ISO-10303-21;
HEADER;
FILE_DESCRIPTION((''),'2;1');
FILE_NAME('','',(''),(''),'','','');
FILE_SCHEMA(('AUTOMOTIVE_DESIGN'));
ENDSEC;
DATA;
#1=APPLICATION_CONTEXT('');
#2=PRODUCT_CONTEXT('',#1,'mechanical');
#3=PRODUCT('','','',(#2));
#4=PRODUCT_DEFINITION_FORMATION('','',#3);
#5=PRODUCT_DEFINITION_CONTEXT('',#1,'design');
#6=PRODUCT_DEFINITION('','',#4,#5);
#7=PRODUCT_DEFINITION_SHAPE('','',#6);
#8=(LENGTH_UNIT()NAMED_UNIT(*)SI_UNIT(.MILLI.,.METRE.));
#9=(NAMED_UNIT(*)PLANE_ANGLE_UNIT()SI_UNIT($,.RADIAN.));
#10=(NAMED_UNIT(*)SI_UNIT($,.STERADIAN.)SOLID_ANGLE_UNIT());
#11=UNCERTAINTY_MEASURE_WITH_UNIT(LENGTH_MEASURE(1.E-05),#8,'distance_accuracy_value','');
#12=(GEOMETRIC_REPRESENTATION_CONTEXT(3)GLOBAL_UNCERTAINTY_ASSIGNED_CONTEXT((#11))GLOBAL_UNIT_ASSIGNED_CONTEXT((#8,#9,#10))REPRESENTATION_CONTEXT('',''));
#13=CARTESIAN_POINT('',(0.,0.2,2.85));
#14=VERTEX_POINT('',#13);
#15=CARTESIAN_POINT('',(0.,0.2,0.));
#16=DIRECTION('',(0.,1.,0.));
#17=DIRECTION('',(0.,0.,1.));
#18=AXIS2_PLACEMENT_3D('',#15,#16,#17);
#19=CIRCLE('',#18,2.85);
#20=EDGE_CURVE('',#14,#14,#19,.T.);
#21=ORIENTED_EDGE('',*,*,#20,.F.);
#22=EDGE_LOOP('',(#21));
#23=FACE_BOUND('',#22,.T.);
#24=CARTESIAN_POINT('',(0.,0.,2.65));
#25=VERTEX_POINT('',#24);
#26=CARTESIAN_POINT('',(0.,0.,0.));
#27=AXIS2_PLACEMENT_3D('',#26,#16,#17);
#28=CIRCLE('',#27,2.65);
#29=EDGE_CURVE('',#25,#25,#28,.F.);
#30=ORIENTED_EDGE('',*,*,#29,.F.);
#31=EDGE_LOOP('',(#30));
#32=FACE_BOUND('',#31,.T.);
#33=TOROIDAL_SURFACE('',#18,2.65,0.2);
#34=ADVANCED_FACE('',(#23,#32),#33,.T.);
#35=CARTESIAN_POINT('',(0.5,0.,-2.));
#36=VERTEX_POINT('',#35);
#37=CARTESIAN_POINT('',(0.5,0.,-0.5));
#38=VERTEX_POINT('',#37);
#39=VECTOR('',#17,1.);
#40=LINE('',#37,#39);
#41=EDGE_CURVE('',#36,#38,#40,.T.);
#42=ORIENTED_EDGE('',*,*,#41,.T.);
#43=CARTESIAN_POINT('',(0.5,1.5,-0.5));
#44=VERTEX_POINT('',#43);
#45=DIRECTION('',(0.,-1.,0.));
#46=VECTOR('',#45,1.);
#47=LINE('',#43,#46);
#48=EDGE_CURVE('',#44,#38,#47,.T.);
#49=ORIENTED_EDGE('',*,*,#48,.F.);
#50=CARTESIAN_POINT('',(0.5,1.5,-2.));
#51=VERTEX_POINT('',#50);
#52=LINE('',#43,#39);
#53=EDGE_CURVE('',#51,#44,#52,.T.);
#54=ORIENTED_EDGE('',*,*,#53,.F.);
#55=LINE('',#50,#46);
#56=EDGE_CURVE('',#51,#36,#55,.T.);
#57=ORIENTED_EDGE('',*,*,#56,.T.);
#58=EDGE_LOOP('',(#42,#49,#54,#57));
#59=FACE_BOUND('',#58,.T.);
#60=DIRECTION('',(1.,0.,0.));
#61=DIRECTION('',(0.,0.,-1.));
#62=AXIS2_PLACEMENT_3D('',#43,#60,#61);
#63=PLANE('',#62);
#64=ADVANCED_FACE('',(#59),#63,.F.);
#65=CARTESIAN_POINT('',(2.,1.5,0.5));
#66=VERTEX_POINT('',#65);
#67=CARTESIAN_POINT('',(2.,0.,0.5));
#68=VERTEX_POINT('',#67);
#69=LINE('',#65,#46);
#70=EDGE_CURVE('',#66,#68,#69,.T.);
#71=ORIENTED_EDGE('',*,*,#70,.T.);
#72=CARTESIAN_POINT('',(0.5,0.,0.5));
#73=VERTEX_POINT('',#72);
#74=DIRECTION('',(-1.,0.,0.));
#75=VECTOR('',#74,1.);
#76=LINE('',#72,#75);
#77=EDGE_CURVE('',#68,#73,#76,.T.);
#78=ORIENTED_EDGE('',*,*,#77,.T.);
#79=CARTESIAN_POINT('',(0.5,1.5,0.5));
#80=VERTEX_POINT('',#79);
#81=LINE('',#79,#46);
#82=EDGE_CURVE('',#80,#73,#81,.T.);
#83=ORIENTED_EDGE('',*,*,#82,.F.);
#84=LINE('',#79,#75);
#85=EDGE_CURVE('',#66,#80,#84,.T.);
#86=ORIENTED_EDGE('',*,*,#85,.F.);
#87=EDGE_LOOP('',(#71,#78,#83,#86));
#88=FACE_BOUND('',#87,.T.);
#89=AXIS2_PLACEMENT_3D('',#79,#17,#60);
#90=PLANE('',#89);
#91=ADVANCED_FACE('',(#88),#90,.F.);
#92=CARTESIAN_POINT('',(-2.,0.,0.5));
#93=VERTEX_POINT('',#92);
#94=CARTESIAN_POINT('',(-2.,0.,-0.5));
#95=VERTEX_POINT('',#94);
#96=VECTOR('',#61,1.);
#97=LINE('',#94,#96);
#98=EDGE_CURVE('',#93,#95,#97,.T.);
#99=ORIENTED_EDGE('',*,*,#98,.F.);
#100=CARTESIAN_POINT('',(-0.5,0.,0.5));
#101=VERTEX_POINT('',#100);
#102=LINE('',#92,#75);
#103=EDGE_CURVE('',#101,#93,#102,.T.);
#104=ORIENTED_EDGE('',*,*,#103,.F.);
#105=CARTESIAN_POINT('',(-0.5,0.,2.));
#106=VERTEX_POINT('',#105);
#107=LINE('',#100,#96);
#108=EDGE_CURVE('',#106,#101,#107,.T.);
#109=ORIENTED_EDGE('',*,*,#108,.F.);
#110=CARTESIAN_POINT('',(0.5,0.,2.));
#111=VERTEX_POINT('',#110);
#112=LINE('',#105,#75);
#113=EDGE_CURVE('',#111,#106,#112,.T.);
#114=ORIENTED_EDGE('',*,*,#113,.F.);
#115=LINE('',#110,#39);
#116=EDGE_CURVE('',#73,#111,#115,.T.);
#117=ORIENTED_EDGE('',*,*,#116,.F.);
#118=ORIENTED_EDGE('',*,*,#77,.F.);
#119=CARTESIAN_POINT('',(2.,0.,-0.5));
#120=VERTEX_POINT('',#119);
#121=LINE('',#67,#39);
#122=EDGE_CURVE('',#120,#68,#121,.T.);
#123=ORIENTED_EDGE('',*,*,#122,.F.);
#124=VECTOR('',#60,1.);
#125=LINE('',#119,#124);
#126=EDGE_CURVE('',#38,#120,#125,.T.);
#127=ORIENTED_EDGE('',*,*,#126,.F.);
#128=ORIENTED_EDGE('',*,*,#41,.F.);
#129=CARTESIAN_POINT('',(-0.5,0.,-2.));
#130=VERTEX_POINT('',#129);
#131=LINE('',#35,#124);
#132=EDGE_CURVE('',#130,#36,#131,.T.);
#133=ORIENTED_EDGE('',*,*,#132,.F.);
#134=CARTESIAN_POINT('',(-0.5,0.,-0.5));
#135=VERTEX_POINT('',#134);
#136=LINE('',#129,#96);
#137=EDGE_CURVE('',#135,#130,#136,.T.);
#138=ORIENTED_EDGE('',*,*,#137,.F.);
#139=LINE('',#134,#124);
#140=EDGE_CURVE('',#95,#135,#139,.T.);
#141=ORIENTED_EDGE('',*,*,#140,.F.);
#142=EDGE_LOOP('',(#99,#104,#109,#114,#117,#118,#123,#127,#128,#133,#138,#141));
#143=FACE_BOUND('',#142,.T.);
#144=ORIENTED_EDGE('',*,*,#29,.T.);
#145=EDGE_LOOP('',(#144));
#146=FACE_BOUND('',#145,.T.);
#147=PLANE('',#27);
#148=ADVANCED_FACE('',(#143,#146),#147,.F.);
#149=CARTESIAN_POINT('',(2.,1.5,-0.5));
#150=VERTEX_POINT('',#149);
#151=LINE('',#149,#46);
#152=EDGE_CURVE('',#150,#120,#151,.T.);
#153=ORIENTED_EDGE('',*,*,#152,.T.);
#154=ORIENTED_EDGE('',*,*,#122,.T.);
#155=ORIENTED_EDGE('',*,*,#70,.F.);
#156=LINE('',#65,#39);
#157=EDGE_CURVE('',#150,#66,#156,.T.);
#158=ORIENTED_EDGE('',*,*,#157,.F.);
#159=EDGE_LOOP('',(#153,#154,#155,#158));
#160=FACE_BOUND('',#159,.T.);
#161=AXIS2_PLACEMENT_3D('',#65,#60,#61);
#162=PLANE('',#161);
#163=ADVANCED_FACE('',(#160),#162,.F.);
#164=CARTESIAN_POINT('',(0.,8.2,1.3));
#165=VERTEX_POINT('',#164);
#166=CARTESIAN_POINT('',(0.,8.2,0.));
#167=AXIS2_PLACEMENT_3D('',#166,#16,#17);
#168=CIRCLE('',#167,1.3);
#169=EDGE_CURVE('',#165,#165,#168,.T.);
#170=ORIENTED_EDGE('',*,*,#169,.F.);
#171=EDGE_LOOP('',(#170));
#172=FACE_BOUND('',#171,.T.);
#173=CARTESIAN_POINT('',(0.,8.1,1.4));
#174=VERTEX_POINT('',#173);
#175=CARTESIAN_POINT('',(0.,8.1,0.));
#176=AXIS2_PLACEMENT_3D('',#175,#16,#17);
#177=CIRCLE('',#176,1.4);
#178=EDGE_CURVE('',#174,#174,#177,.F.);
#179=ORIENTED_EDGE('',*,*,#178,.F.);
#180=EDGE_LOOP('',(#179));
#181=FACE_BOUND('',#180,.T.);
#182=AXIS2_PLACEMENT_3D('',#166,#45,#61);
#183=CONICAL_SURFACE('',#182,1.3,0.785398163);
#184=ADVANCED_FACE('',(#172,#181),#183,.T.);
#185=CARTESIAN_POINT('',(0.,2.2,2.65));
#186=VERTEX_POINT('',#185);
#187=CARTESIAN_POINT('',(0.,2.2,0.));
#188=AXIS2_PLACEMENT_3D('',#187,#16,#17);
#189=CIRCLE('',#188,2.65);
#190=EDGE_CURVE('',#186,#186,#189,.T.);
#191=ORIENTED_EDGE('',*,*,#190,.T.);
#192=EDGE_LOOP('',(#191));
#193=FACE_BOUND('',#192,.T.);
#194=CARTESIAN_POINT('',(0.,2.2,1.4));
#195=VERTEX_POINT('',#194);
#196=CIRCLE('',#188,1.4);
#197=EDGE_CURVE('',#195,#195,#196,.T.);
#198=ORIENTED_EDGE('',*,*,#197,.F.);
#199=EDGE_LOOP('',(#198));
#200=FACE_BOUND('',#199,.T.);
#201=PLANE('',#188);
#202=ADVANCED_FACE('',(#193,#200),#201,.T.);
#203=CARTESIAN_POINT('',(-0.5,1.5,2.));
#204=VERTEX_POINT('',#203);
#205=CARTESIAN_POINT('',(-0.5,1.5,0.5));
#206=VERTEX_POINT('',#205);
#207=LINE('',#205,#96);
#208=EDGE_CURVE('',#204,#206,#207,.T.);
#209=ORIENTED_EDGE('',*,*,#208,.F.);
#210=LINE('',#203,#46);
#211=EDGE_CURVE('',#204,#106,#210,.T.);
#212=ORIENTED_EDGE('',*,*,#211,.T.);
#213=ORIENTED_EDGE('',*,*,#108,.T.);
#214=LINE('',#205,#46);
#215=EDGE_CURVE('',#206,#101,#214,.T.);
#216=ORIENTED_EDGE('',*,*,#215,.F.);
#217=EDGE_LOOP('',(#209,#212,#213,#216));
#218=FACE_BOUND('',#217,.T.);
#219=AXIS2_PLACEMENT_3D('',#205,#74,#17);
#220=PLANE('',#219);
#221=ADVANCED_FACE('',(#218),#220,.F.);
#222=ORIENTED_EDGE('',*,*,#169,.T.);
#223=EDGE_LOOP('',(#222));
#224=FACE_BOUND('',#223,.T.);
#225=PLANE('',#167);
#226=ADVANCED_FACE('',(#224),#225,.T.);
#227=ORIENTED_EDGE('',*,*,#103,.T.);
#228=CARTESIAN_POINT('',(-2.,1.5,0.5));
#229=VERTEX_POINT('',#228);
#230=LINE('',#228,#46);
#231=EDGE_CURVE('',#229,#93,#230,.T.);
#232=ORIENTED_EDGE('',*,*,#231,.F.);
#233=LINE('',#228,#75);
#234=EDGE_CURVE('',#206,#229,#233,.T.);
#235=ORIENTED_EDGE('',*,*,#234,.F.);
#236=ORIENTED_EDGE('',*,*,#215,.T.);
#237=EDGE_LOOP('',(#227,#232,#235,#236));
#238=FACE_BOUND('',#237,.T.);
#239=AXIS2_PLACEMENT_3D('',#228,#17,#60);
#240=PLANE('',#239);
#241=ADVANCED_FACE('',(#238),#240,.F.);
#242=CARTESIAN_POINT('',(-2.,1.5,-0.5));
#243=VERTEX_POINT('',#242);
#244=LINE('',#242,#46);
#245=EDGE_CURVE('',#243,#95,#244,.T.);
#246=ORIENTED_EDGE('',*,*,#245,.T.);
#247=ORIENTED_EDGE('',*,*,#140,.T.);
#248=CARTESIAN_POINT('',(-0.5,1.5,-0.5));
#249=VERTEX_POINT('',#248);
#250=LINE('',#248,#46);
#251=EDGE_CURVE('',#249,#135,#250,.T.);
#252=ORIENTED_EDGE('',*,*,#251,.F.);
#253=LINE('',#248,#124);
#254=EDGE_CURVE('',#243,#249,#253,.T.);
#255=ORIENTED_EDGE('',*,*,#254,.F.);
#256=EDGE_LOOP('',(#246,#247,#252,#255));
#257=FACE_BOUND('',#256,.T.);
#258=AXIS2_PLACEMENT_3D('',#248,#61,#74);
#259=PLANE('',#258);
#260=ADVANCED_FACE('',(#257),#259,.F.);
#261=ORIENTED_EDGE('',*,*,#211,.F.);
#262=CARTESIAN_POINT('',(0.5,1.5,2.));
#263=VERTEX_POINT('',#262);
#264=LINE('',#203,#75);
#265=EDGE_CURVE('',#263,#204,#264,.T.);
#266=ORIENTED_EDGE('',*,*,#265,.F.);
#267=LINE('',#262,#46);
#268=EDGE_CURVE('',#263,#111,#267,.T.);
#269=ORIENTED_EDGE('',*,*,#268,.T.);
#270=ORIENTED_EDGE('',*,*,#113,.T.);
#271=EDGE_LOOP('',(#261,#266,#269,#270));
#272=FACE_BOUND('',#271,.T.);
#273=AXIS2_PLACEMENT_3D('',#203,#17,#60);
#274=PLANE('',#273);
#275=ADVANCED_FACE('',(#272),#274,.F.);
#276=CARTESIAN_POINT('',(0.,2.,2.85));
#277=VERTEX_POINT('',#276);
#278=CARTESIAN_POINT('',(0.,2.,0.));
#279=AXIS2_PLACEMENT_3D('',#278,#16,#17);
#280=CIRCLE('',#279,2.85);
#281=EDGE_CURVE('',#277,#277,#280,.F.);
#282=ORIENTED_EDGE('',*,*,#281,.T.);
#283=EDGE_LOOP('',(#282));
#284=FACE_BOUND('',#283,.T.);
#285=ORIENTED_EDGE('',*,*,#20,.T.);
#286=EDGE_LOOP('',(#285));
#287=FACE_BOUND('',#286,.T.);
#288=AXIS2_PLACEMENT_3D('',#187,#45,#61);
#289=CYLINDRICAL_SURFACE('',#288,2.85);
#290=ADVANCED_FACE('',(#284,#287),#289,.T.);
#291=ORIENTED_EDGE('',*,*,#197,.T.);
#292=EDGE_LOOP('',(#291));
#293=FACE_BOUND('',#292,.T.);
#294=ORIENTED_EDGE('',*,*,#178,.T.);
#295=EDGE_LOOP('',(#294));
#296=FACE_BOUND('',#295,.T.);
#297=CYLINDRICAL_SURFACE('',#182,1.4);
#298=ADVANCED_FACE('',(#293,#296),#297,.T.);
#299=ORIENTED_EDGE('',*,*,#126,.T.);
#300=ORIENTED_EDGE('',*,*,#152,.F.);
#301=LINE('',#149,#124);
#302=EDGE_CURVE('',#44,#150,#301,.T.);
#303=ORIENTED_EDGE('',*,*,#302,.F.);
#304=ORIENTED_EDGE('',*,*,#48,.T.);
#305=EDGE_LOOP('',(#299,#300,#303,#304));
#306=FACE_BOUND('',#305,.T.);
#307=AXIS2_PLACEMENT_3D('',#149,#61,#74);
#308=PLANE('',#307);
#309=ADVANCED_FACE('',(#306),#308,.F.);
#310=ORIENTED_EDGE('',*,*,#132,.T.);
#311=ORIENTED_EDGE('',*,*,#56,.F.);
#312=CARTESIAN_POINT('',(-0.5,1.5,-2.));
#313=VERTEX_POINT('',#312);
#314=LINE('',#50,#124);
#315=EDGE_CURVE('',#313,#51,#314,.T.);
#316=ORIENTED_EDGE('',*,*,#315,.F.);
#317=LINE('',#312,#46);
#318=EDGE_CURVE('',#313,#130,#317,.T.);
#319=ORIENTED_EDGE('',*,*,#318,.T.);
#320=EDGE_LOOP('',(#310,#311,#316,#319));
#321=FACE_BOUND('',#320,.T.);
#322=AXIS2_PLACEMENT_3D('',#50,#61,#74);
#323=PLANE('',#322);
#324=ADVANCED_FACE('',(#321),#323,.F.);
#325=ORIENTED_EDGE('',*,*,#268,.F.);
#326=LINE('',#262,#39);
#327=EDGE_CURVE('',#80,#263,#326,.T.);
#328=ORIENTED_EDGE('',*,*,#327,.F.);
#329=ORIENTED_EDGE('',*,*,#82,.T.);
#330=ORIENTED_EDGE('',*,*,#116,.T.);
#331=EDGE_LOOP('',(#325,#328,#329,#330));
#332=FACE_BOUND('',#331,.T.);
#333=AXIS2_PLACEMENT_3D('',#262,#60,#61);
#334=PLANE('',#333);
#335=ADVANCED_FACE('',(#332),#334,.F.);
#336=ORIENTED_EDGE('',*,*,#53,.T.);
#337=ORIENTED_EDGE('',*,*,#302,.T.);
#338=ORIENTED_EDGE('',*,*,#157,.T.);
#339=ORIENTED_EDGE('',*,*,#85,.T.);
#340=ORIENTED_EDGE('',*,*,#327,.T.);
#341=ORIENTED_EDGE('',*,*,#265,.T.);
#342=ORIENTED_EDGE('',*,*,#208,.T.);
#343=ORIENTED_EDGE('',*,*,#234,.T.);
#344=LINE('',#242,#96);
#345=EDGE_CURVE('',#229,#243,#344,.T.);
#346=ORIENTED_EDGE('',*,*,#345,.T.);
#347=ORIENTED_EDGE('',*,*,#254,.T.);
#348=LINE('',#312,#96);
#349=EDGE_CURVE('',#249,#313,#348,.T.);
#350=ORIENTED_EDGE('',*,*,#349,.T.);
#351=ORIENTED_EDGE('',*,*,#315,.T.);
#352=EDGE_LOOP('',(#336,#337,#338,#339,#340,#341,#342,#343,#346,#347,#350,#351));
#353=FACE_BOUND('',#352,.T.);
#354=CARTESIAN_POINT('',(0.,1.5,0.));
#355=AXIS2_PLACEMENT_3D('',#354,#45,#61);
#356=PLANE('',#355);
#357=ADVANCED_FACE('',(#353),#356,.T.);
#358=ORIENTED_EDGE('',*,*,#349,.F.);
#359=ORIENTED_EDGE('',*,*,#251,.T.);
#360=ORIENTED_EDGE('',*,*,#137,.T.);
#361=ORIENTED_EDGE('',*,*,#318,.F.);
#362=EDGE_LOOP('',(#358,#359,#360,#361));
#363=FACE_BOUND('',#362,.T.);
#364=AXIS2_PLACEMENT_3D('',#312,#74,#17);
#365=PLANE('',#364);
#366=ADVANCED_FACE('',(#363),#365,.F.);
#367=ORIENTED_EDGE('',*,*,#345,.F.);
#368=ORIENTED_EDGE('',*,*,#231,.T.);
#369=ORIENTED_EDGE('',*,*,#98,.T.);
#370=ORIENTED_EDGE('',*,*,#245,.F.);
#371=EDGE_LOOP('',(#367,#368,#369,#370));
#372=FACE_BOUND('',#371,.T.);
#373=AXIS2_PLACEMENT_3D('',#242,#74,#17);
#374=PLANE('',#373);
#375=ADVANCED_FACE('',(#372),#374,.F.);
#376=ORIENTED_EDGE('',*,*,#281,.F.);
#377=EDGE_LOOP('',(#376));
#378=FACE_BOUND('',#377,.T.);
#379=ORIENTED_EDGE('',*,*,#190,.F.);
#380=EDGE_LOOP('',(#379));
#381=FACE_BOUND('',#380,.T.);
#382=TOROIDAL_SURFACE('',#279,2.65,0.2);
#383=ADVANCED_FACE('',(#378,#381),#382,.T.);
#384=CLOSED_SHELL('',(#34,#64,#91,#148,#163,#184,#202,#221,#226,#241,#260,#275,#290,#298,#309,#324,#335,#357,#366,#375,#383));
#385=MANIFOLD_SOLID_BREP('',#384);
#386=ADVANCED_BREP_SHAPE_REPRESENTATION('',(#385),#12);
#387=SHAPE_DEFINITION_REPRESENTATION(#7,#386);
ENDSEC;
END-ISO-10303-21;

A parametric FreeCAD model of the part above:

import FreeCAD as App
import Part
import Sketcher
Q = App.Units.Quantity


def edges_at(feature, points):
    """Names of the edges that pass closest to the given points."""
    edges = feature.Shape.Edges
    near = lambda p: min(range(len(edges)), key=lambda i: edges[i].distToShape(Part.Vertex(*p))[0])
    return sorted({f"Edge{near(p) + 1}" for p in points})


def add_polygon(sketch, points):
    """Adds a closed chain of lines whose ends are joined by coincident constraints."""
    first, n = sketch.GeometryCount, len(points)
    for a, b in zip(points, points[1:] + points[:1]):
        sketch.addGeometry(Part.LineSegment(App.Vector(*a, 0), App.Vector(*b, 0)), False)
    for i in range(n):
        sketch.addConstraint(Sketcher.Constraint("Coincident", first + i, 2, first + (i + 1) % n, 1))

doc = App.newDocument("Part")
params = doc.addObject("Spreadsheet::Sheet", "Params")
for row, (alias, value) in enumerate([
    ("sketch1_diameter", "5.7 mm"),
    ("pad1_length", "2.2 mm"),
    ("sketch2_diameter", "2.8 mm"),
    ("pad2_length", "6 mm"),
    ("chamfer_size", "0.1 mm"),
    ("fillet_radius", "0.2 mm"),
    ("sketch3_width", "1 mm"),
    ("sketch3_width2", "1.5 mm"),
    ("pocket1_length", "1.5 mm"),
], start=1):
    params.set(f"A{row}", alias)
    params.set(f"B{row}", "=" + value)
    params.setAlias(f"B{row}", alias)

body = doc.addObject("PartDesign::Body", "Body")

sketch1 = body.newObject("Sketcher::SketchObject", "Sketch")
sketch1.AttachmentSupport = (doc.getObject("XZ_Plane"), [""])
sketch1.MapMode = "FlatFace"
sketch1.addGeometry(Part.Circle(App.Vector(0, 0, 0), App.Vector(0, 0, 1), 2.9), False)
sketch1.addConstraint(Sketcher.Constraint("Coincident", 0, 3, -1, 1))
sketch1.addConstraint(Sketcher.Constraint("Diameter", 0, Q("5.7 mm")))
sketch1.setExpression("Constraints[1]", "Params.sketch1_diameter")
pad1 = body.newObject("PartDesign::Pad", "Pad")
pad1.Profile = sketch1
pad1.setExpression("Length", "Params.pad1_length")
pad1.Reversed = True

sketch2 = body.newObject("Sketcher::SketchObject", "Sketch001")
sketch2.AttachmentSupport = (doc.getObject("XZ_Plane"), [""])
sketch2.MapMode = "FlatFace"
sketch2.AttachmentOffset = App.Placement(App.Vector(0, 0, -2.2), App.Rotation())
sketch2.addGeometry(Part.Circle(App.Vector(0, 0, 0), App.Vector(0, 0, 1), 1.4), False)
sketch2.addConstraint(Sketcher.Constraint("Coincident", 0, 3, -1, 1))
sketch2.addConstraint(Sketcher.Constraint("Diameter", 0, Q("2.8 mm")))
sketch2.setExpression("Constraints[1]", "Params.sketch2_diameter")
pad2 = body.newObject("PartDesign::Pad", "Pad001")
pad2.Profile = sketch2
pad2.setExpression("Length", "Params.pad2_length")
pad2.Reversed = True
doc.recompute()

chamfer = body.newObject("PartDesign::Chamfer", "Chamfer")
chamfer.Base = (pad2, edges_at(pad2, [(-1.4, 8.2, 0)]))
chamfer.setExpression("Size", "Params.chamfer_size")
doc.recompute()

fillet = body.newObject("PartDesign::Fillet", "Fillet")
fillet.Base = (chamfer, edges_at(chamfer, [(-2.85, 0, 0), (-2.85, 2.2, 0)]))
fillet.setExpression("Radius", "Params.fillet_radius")

sketch3 = body.newObject("Sketcher::SketchObject", "Sketch002")
sketch3.AttachmentSupport = (doc.getObject("XZ_Plane"), [""])
sketch3.MapMode = "FlatFace"
add_polygon(sketch3, [(-0.5, 2), (-0.5, 0.5), (-2, 0.5), (-2, -0.5), (-0.5, -0.5), (-0.5, -2), (0.5, -2), (0.5, -0.5), (2, -0.5), (2, 0.5), (0.5, 0.5), (0.5, 2)])
sketch3.addConstraint(Sketcher.Constraint("Vertical", 0))
sketch3.addConstraint(Sketcher.Constraint("Horizontal", 1))
sketch3.addConstraint(Sketcher.Constraint("Vertical", 2))
sketch3.addConstraint(Sketcher.Constraint("Horizontal", 3))
sketch3.addConstraint(Sketcher.Constraint("Vertical", 4))
sketch3.addConstraint(Sketcher.Constraint("Horizontal", 5))
sketch3.addConstraint(Sketcher.Constraint("Vertical", 6))
sketch3.addConstraint(Sketcher.Constraint("Horizontal", 7))
sketch3.addConstraint(Sketcher.Constraint("Vertical", 8))
sketch3.addConstraint(Sketcher.Constraint("Horizontal", 9))
sketch3.addConstraint(Sketcher.Constraint("Vertical", 10))
sketch3.addConstraint(Sketcher.Constraint("Horizontal", 11))
sketch3.addConstraint(Sketcher.Constraint("Symmetric", 0, 2, 6, 2, -1, 1))
sketch3.addConstraint(Sketcher.Constraint("Symmetric", 2, 2, 8, 2, -1, 1))
sketch3.addConstraint(Sketcher.Constraint("Symmetric", 4, 2, 10, 2, -1, 1))
sketch3.addConstraint(Sketcher.Constraint("Symmetric", 3, 2, 6, 2, -2))
sketch3.addConstraint(Sketcher.Constraint("Equal", 9, 0))
sketch3.addConstraint(Sketcher.Constraint("Equal", 11, 2))
sketch3.addConstraint(Sketcher.Constraint("DistanceX", 5, 1, 5, 2, Q("1 mm")))
sketch3.addConstraint(Sketcher.Constraint("DistanceX", 1, 2, 1, 1, Q("1.5 mm")))
sketch3.setExpression("Constraints[30]", "Params.sketch3_width")
sketch3.setExpression("Constraints[31]", "Params.sketch3_width2")
pocket1 = body.newObject("PartDesign::Pocket", "Pocket")
pocket1.Profile = sketch3
pocket1.setExpression("Length", "Params.pocket1_length")

doc.recompute()
